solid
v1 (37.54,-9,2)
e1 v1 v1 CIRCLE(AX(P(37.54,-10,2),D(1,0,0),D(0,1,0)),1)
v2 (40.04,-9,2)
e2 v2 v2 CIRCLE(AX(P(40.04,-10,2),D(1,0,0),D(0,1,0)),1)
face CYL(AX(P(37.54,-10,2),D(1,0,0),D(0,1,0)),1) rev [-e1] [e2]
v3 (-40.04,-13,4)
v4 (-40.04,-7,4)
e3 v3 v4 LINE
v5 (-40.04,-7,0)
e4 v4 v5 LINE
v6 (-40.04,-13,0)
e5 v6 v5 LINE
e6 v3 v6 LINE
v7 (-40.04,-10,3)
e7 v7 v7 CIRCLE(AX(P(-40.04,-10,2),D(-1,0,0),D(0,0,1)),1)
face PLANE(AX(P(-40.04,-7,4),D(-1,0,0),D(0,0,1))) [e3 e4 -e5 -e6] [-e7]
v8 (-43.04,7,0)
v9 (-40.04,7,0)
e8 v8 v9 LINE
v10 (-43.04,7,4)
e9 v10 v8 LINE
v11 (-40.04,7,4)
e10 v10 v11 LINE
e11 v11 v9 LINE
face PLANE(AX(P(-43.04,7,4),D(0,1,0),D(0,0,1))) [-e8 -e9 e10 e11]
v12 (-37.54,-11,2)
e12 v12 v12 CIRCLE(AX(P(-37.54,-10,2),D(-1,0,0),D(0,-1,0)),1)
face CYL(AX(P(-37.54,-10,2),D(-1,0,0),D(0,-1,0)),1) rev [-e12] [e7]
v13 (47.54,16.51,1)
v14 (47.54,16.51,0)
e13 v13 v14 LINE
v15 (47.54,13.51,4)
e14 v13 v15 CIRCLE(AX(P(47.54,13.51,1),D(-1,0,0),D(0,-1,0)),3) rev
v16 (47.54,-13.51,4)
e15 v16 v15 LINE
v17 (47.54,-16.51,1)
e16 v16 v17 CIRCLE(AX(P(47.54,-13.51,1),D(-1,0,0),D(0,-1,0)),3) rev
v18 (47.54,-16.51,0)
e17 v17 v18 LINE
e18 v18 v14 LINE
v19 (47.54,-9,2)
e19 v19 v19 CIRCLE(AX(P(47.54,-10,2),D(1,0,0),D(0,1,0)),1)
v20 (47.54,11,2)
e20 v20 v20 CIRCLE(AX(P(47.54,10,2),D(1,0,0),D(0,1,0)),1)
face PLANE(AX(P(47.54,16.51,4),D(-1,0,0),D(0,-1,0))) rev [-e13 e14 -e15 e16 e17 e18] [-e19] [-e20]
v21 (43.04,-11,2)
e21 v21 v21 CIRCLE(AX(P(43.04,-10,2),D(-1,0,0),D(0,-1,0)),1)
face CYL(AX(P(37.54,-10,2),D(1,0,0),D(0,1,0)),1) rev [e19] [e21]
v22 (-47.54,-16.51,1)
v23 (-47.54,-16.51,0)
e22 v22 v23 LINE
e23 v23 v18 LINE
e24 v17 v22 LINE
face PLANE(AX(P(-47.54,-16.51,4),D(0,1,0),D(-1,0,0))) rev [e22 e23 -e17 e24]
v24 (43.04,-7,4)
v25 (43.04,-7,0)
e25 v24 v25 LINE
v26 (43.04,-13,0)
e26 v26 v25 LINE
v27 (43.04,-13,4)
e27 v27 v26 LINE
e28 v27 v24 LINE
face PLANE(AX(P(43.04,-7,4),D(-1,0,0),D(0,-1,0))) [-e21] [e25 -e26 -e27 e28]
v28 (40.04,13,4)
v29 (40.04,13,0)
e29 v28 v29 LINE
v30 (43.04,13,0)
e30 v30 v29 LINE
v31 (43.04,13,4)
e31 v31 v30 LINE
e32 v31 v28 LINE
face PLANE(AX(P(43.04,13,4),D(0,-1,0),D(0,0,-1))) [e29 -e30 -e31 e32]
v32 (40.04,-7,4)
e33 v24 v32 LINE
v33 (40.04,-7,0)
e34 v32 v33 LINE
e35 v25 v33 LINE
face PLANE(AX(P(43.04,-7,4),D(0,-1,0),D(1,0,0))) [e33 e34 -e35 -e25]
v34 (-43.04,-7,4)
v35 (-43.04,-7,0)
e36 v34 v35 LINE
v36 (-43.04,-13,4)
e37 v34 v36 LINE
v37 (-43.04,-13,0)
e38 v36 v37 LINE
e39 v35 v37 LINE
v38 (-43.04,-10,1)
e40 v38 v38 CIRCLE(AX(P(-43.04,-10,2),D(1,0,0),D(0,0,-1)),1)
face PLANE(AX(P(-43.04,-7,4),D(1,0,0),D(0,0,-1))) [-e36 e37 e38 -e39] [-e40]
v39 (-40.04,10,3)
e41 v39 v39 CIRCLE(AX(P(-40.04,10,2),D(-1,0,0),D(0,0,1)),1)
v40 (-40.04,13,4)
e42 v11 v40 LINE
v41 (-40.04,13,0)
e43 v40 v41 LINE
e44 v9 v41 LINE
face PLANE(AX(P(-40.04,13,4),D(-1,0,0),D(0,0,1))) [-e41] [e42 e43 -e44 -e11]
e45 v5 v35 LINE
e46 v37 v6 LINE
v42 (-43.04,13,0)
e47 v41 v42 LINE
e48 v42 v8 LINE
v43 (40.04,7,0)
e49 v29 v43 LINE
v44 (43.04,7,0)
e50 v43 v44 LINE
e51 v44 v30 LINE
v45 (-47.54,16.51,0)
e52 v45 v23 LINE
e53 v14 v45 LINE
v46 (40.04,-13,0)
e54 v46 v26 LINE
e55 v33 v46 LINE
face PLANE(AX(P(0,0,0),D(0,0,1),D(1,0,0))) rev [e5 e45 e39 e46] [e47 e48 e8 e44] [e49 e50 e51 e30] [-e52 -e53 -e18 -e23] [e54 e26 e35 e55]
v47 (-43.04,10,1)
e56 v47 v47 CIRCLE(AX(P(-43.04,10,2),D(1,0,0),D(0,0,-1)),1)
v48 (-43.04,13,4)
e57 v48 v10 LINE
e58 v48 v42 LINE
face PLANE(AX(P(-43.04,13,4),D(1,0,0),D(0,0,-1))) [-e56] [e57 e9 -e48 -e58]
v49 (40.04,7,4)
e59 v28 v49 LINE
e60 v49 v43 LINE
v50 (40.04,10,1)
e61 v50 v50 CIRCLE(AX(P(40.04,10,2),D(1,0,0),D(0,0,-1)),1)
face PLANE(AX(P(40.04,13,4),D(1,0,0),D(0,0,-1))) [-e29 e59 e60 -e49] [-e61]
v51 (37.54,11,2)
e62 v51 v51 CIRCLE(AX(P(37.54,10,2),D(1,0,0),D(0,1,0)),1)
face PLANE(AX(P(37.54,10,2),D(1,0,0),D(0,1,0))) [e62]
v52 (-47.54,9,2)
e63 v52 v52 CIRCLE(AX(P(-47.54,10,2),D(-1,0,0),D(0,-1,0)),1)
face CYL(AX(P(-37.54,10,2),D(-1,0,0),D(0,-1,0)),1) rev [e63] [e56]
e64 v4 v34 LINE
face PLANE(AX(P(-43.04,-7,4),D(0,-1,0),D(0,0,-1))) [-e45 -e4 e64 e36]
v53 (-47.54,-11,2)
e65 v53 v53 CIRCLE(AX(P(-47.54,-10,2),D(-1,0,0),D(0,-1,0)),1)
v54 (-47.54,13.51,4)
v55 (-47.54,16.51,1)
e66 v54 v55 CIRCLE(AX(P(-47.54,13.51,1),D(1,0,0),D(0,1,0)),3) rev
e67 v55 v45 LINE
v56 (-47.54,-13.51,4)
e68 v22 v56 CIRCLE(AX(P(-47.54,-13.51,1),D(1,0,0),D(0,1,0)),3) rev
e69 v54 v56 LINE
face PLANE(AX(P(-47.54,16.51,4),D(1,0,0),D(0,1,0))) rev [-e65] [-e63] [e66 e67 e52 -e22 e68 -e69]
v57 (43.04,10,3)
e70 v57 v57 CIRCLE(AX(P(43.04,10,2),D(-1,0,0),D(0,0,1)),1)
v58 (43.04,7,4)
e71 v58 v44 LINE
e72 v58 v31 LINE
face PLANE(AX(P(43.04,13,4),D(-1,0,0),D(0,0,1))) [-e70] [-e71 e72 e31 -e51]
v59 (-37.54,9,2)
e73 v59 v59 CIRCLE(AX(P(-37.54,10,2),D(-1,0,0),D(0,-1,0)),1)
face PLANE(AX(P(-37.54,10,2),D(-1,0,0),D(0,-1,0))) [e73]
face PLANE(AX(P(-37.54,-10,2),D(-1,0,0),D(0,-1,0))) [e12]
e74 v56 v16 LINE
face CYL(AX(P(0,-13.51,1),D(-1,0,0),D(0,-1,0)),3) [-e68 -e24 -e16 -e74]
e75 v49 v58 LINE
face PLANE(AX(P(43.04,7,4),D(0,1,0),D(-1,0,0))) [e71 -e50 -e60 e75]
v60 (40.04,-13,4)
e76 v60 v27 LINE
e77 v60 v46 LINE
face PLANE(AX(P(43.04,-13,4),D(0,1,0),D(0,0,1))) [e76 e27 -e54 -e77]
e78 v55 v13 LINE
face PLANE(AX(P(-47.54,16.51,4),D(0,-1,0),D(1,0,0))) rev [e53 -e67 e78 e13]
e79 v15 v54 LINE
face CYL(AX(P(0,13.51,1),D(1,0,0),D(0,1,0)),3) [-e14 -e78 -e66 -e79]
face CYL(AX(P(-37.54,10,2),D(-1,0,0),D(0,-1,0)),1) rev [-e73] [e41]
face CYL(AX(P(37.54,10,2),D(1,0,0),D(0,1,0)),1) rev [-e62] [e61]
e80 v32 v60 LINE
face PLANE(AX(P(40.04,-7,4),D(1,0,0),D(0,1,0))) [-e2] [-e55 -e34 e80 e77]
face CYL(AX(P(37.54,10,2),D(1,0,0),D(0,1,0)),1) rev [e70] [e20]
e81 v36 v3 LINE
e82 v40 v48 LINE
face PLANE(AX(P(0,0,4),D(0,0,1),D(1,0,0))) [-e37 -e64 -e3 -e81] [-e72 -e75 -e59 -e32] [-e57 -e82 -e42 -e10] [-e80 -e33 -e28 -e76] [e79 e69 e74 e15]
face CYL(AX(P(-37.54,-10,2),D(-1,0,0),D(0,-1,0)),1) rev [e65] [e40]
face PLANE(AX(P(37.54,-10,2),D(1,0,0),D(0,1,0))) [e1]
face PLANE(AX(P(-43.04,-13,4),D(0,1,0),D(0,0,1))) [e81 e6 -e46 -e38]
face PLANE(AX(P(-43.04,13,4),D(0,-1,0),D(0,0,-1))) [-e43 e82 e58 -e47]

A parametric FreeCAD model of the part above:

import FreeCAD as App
import Part
import Sketcher

V = App.Vector


def edges_at(feature, points):
    """Names of the edges that pass closest to the given points."""
    edges = feature.Shape.Edges
    near = lambda p: min(range(len(edges)), key=lambda i: edges[i].distToShape(Part.Vertex(*p))[0])
    return sorted({f"Edge{near(p) + 1}" for p in points})


def add_polygon(sketch, points):
    """Adds a closed chain of lines whose ends are joined by coincident constraints."""
    first, n = sketch.GeometryCount, len(points)
    for a, b in zip(points, points[1:] + points[:1]):
        sketch.addGeometry(Part.LineSegment(App.Vector(*a, 0), App.Vector(*b, 0)), False)
    for i in range(n):
        sketch.addConstraint(Sketcher.Constraint("Coincident", first + i, 2, first + (i + 1) % n, 1))

doc = App.newDocument("Part")
body = doc.addObject("PartDesign::Body", "Body")

# Sketch on XY plane
sketch1 = body.newObject("Sketcher::SketchObject", "Sketch")
sketch1.AttachmentSupport = (doc.getObject("XY_Plane"), [""])
sketch1.MapMode = "FlatFace"
add_polygon(sketch1, [(-47.5, 16.5), (-47.5, -16.5), (47.5, -16.5), (47.5, 16.5)])  # lines 0-3
add_polygon(sketch1, [(-40, -13), (-43, -13), (-43, -7), (-40, -7)])  # lines 4-7
add_polygon(sketch1, [(43, -13), (40, -13), (40, -7), (43, -7)])  # lines 8-11
add_polygon(sketch1, [(-40, 7), (-43, 7), (-43, 13), (-40, 13)])  # lines 12-15
add_polygon(sketch1, [(43, 7), (40, 7), (40, 13), (43, 13)])  # lines 16-19
sketch1.addConstraint([
    Sketcher.Constraint("Vertical", 0),
    Sketcher.Constraint("Horizontal", 1),
    Sketcher.Constraint("Vertical", 2),
    Sketcher.Constraint("Horizontal", 3),
    Sketcher.Constraint("Horizontal", 4),
    Sketcher.Constraint("Vertical", 5),
    Sketcher.Constraint("Horizontal", 6),
    Sketcher.Constraint("Vertical", 7),
    Sketcher.Constraint("Horizontal", 8),
    Sketcher.Constraint("Vertical", 9),
    Sketcher.Constraint("Horizontal", 10),
    Sketcher.Constraint("Vertical", 11),
    Sketcher.Constraint("Horizontal", 12),
    Sketcher.Constraint("Vertical", 13),
    Sketcher.Constraint("Horizontal", 14),
    Sketcher.Constraint("Vertical", 15),
    Sketcher.Constraint("Horizontal", 16),
    Sketcher.Constraint("Vertical", 17),
    Sketcher.Constraint("Horizontal", 18),
    Sketcher.Constraint("Vertical", 19),
    Sketcher.Constraint("Symmetric", 0, 2, 2, 2, -1, 1),
    Sketcher.Constraint("Symmetric", 10, 2, 12, 2, -1, 1),
    Sketcher.Constraint("Symmetric", 8, 2, 14, 2, -1, 1),
    Sketcher.Constraint("Symmetric", 6, 2, 16, 2, -1, 1),
    Sketcher.Constraint("Symmetric", 4, 2, 18, 2, -1, 1),
    Sketcher.Constraint("Symmetric", 7, 2, 8, 2, -2),
    Sketcher.Constraint("Symmetric", 5, 2, 10, 2, -2),
    Sketcher.Constraint("DistanceX", 4, 2, 4, 1, 3.0),
    Sketcher.Constraint("DistanceY", 5, 1, 5, 2, 6.0),
    Sketcher.Constraint("DistanceY", 4, 2, -1, 1, 13.0),
    Sketcher.Constraint("DistanceX", 1, 1, 1, 2, 95.08),
    Sketcher.Constraint("DistanceY", 0, 2, 0, 1, 33.02),
    Sketcher.Constraint("DistanceX", 0, 2, 4, 2, 4.5),
])
pad1 = body.newObject("PartDesign::Pad", "Pad")
pad1.Profile = sketch1
pad1.Length = 4
doc.recompute()

fillet = body.newObject("PartDesign::Fillet", "Fillet")
fillet.Base = (pad1, edges_at(pad1, [(0, -16.51, 4), (0, 16.51, 4)]))
fillet.Radius = 3

# Sketch on YZ plane
sketch2 = body.newObject("Sketcher::SketchObject", "Sketch001")
sketch2.AttachmentSupport = (doc.getObject("YZ_Plane"), [""])
sketch2.MapMode = "FlatFace"
sketch2.AttachmentOffset = App.Placement(V(0, 0, 47.54), App.Rotation())
sketch2.addGeometry([
    Part.Circle(V(10, 2, 0), V(0, 0, 1), 1),
    Part.Circle(V(-10, 2, 0), V(0, 0, 1), 1),
], False)
sketch2.addConstraint([
    Sketcher.Constraint("Equal", 0, 1),
    Sketcher.Constraint("Symmetric", 0, 3, 1, 3, -2),
    Sketcher.Constraint("Diameter", 0, 2.0),
    Sketcher.Constraint("DistanceX", -1, 1, 0, 3, 10.0),
    Sketcher.Constraint("DistanceY", -1, 1, 0, 3, 2.0),
])
pocket1 = body.newObject("PartDesign::Pocket", "Pocket")
pocket1.Profile = sketch2
pocket1.Length = 10

# Sketch on YZ plane
sketch3 = body.newObject("Sketcher::SketchObject", "Sketch002")
sketch3.AttachmentSupport = (doc.getObject("YZ_Plane"), [""])
sketch3.MapMode = "FlatFace"
sketch3.AttachmentOffset = App.Placement(V(0, 0, -37.54), App.Rotation())
sketch3.addGeometry([
    Part.Circle(V(10, 2, 0), V(0, 0, 1), 1),
    Part.Circle(V(-10, 2, 0), V(0, 0, 1), 1),
], False)
sketch3.addConstraint([
    Sketcher.Constraint("Equal", 0, 1),
    Sketcher.Constraint("Symmetric", 0, 3, 1, 3, -2),
    Sketcher.Constraint("Diameter", 0, 2.0),
    Sketcher.Constraint("DistanceX", -1, 1, 0, 3, 10.0),
    Sketcher.Constraint("DistanceY", -1, 1, 0, 3, 2.0),
])
pocket2 = body.newObject("PartDesign::Pocket", "Pocket001")
pocket2.Profile = sketch3
pocket2.Length = 10

doc.recompute()
